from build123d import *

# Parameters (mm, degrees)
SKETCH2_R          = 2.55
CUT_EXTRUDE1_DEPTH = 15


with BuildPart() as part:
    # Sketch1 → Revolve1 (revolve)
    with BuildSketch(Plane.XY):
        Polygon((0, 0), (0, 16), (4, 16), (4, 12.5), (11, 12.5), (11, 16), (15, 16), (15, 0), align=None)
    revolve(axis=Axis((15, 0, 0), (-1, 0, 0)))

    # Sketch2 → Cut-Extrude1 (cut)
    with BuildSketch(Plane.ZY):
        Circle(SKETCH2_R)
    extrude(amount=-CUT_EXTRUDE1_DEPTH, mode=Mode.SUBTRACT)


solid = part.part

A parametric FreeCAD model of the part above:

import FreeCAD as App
import Part
import Sketcher
Q = App.Units.Quantity


def add_polygon(sketch, points):
    """Adds a closed chain of lines whose ends are joined by coincident constraints."""
    first, n = sketch.GeometryCount, len(points)
    for a, b in zip(points, points[1:] + points[:1]):
        sketch.addGeometry(Part.LineSegment(App.Vector(*a, 0), App.Vector(*b, 0)), False)
    for i in range(n):
        sketch.addConstraint(Sketcher.Constraint("Coincident", first + i, 2, first + (i + 1) % n, 1))

doc = App.newDocument("Part")
body = doc.addObject("PartDesign::Body", "Body")

# Sketch on XY plane
sketch1 = doc.addObject("Sketcher::SketchObject", "Sketch")
body.addObject(sketch1)
sketch1.AttachmentSupport = (doc.XY_Plane, [""])
sketch1.MapMode = "FlatFace"
add_polygon(sketch1, [(0, 16), (0, 0), (15, 0), (15, 16), (11, 16), (11, 12.5), (4, 12.5), (4, 16)])  # lines 0-7
sketch1.addConstraint([
    Sketcher.Constraint("Vertical", 0),
    Sketcher.Constraint("Horizontal", 1),
    Sketcher.Constraint("Vertical", 2),
    Sketcher.Constraint("Horizontal", 3),
    Sketcher.Constraint("Vertical", 4),
    Sketcher.Constraint("Horizontal", 5),
    Sketcher.Constraint("Vertical", 6),
    Sketcher.Constraint("Horizontal", 7),
    Sketcher.Constraint("Coincident", 0, 2, -1, 1),
    Sketcher.Constraint("Horizontal", 3, 2, 6, 2),
    Sketcher.Constraint("Equal", 3, 7),
    Sketcher.Constraint("DistanceX", 1, 1, 1, 2, Q("15 mm")),
    Sketcher.Constraint("DistanceX", 3, 2, 3, 1, Q("4 mm")),
    Sketcher.Constraint("DistanceY", 0, 2, 0, 1, Q("16 mm")),
    Sketcher.Constraint("DistanceY", 4, 2, 4, 1, Q("3.5 mm")),
])
revolution = doc.addObject("PartDesign::Revolution", "Revolution")
body.addObject(revolution)
revolution.Profile = sketch1
revolution.ReferenceAxis = (sketch1, ["H_Axis"])
revolution.Angle = 360

# Sketch on YZ plane
sketch2 = doc.addObject("Sketcher::SketchObject", "Sketch001")
body.addObject(sketch2)
sketch2.AttachmentSupport = (doc.YZ_Plane, [""])
sketch2.MapMode = "FlatFace"
sketch2.addGeometry(Part.Circle(App.Vector(0, 0, 0), App.Vector(0, 0, 1), 2.5), False)
sketch2.addConstraint([
    Sketcher.Constraint("Coincident", 0, 3, -1, 1),
    Sketcher.Constraint("Diameter", 0, Q("5.1 mm")),
])
pocket1 = doc.addObject("PartDesign::Pocket", "Pocket")
body.addObject(pocket1)
pocket1.Profile = sketch2
pocket1.Length = 15
pocket1.Reversed = True

doc.recompute()
